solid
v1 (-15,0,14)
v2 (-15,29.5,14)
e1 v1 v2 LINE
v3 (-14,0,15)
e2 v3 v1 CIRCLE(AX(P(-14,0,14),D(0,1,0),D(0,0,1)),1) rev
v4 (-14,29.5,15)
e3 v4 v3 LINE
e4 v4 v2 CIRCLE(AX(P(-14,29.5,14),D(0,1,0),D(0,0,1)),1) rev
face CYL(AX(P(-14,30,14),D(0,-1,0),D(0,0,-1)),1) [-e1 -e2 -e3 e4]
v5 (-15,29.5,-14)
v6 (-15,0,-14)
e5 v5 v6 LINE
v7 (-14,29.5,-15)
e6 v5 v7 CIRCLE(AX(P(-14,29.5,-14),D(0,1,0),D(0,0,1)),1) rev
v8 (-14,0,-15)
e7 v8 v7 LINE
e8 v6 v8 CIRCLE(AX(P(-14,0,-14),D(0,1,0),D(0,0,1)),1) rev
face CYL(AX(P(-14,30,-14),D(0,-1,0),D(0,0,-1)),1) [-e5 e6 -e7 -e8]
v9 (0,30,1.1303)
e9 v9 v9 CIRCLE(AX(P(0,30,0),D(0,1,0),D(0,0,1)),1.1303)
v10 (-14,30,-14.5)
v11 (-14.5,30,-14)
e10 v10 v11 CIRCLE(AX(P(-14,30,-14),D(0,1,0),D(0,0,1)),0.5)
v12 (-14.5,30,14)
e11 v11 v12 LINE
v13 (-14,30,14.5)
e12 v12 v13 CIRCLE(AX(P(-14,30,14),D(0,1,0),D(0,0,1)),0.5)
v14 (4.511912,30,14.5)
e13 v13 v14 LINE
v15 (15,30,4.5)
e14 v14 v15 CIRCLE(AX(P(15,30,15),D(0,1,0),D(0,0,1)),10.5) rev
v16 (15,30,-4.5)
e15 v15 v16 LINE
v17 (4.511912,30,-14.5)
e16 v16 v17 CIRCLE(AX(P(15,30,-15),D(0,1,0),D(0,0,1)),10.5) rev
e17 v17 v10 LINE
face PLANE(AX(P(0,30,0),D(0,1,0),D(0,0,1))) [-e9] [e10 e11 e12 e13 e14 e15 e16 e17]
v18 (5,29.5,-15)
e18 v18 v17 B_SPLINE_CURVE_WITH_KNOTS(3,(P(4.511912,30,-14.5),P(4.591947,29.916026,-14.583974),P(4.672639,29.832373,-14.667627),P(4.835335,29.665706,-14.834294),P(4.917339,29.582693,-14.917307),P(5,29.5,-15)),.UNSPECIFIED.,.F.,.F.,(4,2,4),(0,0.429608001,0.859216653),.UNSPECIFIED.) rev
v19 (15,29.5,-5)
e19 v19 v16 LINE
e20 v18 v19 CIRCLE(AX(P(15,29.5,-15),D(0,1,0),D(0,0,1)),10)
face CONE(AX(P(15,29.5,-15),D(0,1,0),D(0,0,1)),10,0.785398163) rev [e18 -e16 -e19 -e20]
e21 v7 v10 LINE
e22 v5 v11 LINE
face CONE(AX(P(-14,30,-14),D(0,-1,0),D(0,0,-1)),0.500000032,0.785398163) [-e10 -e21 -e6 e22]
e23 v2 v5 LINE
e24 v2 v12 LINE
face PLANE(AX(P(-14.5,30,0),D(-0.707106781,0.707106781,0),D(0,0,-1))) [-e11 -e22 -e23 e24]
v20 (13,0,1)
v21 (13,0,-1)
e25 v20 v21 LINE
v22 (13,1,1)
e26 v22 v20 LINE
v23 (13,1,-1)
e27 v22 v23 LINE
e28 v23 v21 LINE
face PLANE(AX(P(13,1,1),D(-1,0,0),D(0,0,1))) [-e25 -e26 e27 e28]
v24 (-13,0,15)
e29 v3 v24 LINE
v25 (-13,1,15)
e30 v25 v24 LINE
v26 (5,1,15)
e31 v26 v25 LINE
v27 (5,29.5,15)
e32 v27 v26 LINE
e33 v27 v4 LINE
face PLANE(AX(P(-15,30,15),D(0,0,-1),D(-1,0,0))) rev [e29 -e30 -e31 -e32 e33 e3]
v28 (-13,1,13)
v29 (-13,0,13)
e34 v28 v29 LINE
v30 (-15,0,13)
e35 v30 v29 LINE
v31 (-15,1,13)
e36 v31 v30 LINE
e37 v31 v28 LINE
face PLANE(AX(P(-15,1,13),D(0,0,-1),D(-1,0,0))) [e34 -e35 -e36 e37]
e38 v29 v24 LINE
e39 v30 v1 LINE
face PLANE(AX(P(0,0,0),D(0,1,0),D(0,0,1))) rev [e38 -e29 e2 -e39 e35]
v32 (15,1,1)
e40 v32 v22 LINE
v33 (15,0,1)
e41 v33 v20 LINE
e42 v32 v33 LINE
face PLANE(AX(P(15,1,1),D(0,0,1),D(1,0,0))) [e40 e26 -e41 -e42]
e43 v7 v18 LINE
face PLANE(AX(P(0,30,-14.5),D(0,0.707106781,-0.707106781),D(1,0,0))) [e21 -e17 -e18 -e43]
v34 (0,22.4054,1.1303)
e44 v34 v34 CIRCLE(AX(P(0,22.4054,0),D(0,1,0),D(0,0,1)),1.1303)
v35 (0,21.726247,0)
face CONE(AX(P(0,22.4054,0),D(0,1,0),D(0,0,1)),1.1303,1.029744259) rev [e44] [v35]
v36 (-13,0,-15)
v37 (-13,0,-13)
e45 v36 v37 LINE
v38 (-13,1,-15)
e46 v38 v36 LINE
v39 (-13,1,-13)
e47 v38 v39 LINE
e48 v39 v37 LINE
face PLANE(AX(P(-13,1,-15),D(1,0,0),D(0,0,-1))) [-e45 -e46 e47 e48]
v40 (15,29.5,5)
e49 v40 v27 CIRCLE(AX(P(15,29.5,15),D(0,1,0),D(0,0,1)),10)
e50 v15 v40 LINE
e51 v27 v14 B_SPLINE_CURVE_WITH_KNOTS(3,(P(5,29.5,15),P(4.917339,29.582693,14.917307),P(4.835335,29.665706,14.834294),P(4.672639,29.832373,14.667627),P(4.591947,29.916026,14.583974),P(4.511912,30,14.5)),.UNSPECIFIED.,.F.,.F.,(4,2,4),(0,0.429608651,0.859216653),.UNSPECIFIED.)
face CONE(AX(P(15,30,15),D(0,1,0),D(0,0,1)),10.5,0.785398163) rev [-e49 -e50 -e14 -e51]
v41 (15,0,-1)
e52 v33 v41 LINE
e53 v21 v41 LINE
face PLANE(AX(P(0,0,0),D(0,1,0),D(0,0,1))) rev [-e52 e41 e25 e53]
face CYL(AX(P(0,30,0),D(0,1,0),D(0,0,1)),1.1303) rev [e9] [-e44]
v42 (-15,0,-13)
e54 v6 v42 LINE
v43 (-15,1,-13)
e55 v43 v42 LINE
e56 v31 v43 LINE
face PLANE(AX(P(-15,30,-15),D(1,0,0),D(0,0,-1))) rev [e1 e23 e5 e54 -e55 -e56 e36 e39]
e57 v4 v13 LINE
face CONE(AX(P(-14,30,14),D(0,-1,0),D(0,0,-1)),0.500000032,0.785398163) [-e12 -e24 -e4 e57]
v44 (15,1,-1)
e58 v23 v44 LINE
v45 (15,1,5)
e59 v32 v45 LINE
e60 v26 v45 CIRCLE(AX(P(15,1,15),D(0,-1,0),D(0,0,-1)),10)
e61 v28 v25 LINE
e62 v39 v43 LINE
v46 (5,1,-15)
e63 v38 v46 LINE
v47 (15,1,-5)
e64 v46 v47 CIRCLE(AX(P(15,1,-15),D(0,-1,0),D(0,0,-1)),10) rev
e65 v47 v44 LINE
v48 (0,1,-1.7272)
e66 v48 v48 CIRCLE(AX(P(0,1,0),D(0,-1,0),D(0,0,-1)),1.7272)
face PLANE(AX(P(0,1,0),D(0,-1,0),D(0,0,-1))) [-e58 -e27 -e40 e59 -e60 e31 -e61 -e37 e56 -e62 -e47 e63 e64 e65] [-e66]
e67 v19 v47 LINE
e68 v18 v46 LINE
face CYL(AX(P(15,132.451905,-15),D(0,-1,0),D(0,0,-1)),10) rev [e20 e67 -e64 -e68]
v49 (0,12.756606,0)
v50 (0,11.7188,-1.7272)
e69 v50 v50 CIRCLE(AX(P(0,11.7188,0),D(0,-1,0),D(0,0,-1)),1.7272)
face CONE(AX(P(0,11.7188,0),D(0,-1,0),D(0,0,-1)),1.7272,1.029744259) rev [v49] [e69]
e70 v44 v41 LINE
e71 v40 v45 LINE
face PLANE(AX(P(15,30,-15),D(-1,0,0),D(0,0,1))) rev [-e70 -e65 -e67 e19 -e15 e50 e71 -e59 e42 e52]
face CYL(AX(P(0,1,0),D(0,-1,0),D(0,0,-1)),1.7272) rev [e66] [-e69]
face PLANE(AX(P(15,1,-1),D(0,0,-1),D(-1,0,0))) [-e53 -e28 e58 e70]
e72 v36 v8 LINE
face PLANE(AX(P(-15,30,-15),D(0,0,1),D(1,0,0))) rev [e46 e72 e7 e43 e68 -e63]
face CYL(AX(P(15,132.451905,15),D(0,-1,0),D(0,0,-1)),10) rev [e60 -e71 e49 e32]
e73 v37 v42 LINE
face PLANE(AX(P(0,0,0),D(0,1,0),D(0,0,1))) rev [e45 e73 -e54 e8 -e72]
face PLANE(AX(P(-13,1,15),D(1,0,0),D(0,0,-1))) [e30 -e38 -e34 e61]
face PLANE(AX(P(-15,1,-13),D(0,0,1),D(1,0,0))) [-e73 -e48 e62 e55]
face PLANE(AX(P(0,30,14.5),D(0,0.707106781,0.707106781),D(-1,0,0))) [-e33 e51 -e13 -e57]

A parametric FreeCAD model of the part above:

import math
import FreeCAD as App
import Part
import Sketcher
from FreeCAD import Vector


def edges_at(feature, points):
    """Names of the edges that pass closest to the given points."""
    edges = feature.Shape.Edges
    near = lambda p: min(range(len(edges)), key=lambda i: edges[i].distToShape(Part.Vertex(*p))[0])
    return sorted({f"Edge{near(p) + 1}" for p in points})


def add_polygon(sketch, points):
    """Adds a closed chain of lines whose ends are joined by coincident constraints."""
    first, n = sketch.GeometryCount, len(points)
    for a, b in zip(points, points[1:] + points[:1]):
        sketch.addGeometry(Part.LineSegment(App.Vector(*a, 0), App.Vector(*b, 0)), False)
    for i in range(n):
        sketch.addConstraint(Sketcher.Constraint("Coincident", first + i, 2, first + (i + 1) % n, 1))

doc = App.newDocument("Part")
body = doc.addObject("PartDesign::Body", "Body")

# Sketch on XZ plane
sketch1 = body.newObject("Sketcher::SketchObject", "Sketch")
sketch1.AttachmentSupport = (doc.getObject("XZ_Plane"), [""])
sketch1.MapMode = "FlatFace"
add_polygon(sketch1, [(-15, -15), (-15, 15), (15, 15), (15, -15)])  # lines 0-3
sketch1.addConstraint(Sketcher.Constraint("Vertical", 0))
sketch1.addConstraint(Sketcher.Constraint("Horizontal", 1))
sketch1.addConstraint(Sketcher.Constraint("Vertical", 2))
sketch1.addConstraint(Sketcher.Constraint("Horizontal", 3))
sketch1.addConstraint(Sketcher.Constraint("Symmetric", 0, 2, 2, 2, -1, 1))
sketch1.addConstraint(Sketcher.Constraint("Equal", 3, 0))
sketch1.addConstraint(Sketcher.Constraint("DistanceX", 1, 1, 1, 2, 30.0))
pad1 = body.newObject("PartDesign::Pad", "Pad")
pad1.Profile = sketch1
pad1.Length = 30
pad1.Reversed = True

# Sketch on XZ plane
sketch2 = body.newObject("Sketcher::SketchObject", "Sketch001")
sketch2.AttachmentSupport = (doc.getObject("XZ_Plane"), [""])
sketch2.MapMode = "FlatFace"
sketch2.AttachmentOffset = App.Placement(Vector(0, 0, 1), App.Rotation())
sketch2.addGeometry(Part.LineSegment(Vector(15, -5, 0), Vector(97.111026, -5, 0)), False)
sketch2.addGeometry(Part.LineSegment(Vector(97.111026, -5, 0), Vector(213.233551, -121.122526, 0)), False)
sketch2.addGeometry(Part.LineSegment(Vector(213.233551, -121.122526, 0), Vector(121.122526, -213.233551, 0)), False)
sketch2.addGeometry(Part.LineSegment(Vector(121.122526, -213.233551, 0), Vector(5, -97.111026, 0)), False)
sketch2.addGeometry(Part.LineSegment(Vector(5, -97.111026, 0), Vector(5, -15, 0)), False)
sketch2.addGeometry(Part.ArcOfCircle(Part.Circle(Vector(15, -15, 0), Vector(0, 0, 1), 10), math.radians(90), math.radians(180)), False)
sketch2.addConstraint(Sketcher.Constraint("Coincident", 0, 2, 1, 1))
sketch2.addConstraint(Sketcher.Constraint("Coincident", 1, 2, 2, 1))
sketch2.addConstraint(Sketcher.Constraint("Coincident", 2, 2, 3, 1))
sketch2.addConstraint(Sketcher.Constraint("Coincident", 3, 2, 4, 1))
sketch2.addConstraint(Sketcher.Constraint("Tangent", 4, 2, 5, 2))
sketch2.addConstraint(Sketcher.Constraint("Tangent", 5, 1, 0, 1))
sketch2.addConstraint(Sketcher.Constraint("Horizontal", 0))
sketch2.addConstraint(Sketcher.Constraint("Vertical", 4))
sketch2.addConstraint(Sketcher.Constraint("Perpendicular", 1, 2))
sketch2.addConstraint(Sketcher.Constraint("Perpendicular", 2, 3))
sketch2.addConstraint(Sketcher.Constraint("Equal", 0, 4))
sketch2.addConstraint(Sketcher.Constraint("Equal", 1, 3))
sketch2.addConstraint(Sketcher.Constraint("Radius", 5, 10.0))
sketch2.addConstraint(Sketcher.Constraint("DistanceX", -1, 1, 5, 3, 15.0))
sketch2.addConstraint(Sketcher.Constraint("DistanceY", 5, 3, -1, 1, 15.0))
sketch2.addConstraint(Sketcher.Constraint("DistanceX", 0, 2, 2, 2, 24.0115))
sketch2.addConstraint(Sketcher.Constraint("Distance", 1, 164.222051))
pocket1 = body.newObject("PartDesign::Pocket", "Pocket")
pocket1.Profile = sketch2
pocket1.Length = 32
doc.recompute()

mirrored = body.newObject("PartDesign::Mirrored", "Mirrored")
mirrored.Originals = [pocket1]
mirrored.MirrorPlane = (doc.getObject("XY_Plane"), [""])
body.Tip = mirrored

# Sketch on XZ plane
sketch3 = body.newObject("Sketcher::SketchObject", "Sketch002")
sketch3.AttachmentSupport = (doc.getObject("XZ_Plane"), [""])
sketch3.MapMode = "FlatFace"
add_polygon(sketch3, [(-21.196, 21.196), (-21.196, -21.196), (21.196, -21.196), (21.196, 21.196)])  # lines 0-3
add_polygon(sketch3, [(-13, -15), (-15, -15), (-15, -13), (-13, -13)])  # lines 4-7
add_polygon(sketch3, [(-13, 13), (-15, 13), (-15, 15), (-13, 15)])  # lines 8-11
add_polygon(sketch3, [(15, -1), (13, -1), (13, 1), (15, 1)])  # lines 12-15
sketch3.addConstraint(Sketcher.Constraint("Vertical", 0))
sketch3.addConstraint(Sketcher.Constraint("Horizontal", 1))
sketch3.addConstraint(Sketcher.Constraint("Vertical", 2))
sketch3.addConstraint(Sketcher.Constraint("Horizontal", 3))
sketch3.addConstraint(Sketcher.Constraint("Horizontal", 4))
sketch3.addConstraint(Sketcher.Constraint("Vertical", 5))
sketch3.addConstraint(Sketcher.Constraint("Horizontal", 6))
sketch3.addConstraint(Sketcher.Constraint("Vertical", 7))
sketch3.addConstraint(Sketcher.Constraint("Horizontal", 8))
sketch3.addConstraint(Sketcher.Constraint("Vertical", 9))
sketch3.addConstraint(Sketcher.Constraint("Horizontal", 10))
sketch3.addConstraint(Sketcher.Constraint("Vertical", 11))
sketch3.addConstraint(Sketcher.Constraint("Horizontal", 12))
sketch3.addConstraint(Sketcher.Constraint("Vertical", 13))
sketch3.addConstraint(Sketcher.Constraint("Horizontal", 14))
sketch3.addConstraint(Sketcher.Constraint("Vertical", 15))
sketch3.addConstraint(Sketcher.Constraint("Symmetric", 0, 2, 2, 2, -1, 1))
sketch3.addConstraint(Sketcher.Constraint("Symmetric", 5, 2, 8, 2, -1))
sketch3.addConstraint(Sketcher.Constraint("Symmetric", 7, 2, 10, 2, -1))
sketch3.addConstraint(Sketcher.Constraint("Equal", 10, 12))
sketch3.addConstraint(Sketcher.Constraint("Equal", 3, 0))
sketch3.addConstraint(Sketcher.Constraint("Equal", 14, 5))
sketch3.addConstraint(Sketcher.Constraint("Equal", 11, 13))
sketch3.addConstraint(Sketcher.Constraint("DistanceX", 4, 2, 4, 1, 2.0))
sketch3.addConstraint(Sketcher.Constraint("DistanceX", 4, 2, -1, 1, 15.0))
sketch3.addConstraint(Sketcher.Constraint("DistanceY", 4, 2, -1, 1, 15.0))
sketch3.addConstraint(Sketcher.Constraint("DistanceX", -1, 1, 12, 2, 13.0))
sketch3.addConstraint(Sketcher.Constraint("DistanceY", 12, 2, -1, 1, 1.0))
sketch3.addConstraint(Sketcher.Constraint("DistanceX", 1, 1, 1, 2, 42.392))
pocket2 = body.newObject("PartDesign::Pocket", "Pocket001")
pocket2.Profile = sketch3
pocket2.Length = 1

# Sketch on XZ plane
sketch4 = body.newObject("Sketcher::SketchObject", "Sketch003")
sketch4.AttachmentSupport = (doc.getObject("XZ_Plane"), [""])
sketch4.MapMode = "FlatFace"
sketch4.AttachmentOffset = App.Placement(Vector(0, 0, -1), App.Rotation())
sketch4.addGeometry(Part.Circle(Vector(0, 0, 0), Vector(0, 0, 1), 1.7272), False)
sketch4.addConstraint(Sketcher.Constraint("Coincident", 0, 3, -1, 1))
sketch4.addConstraint(Sketcher.Constraint("Diameter", 0, 3.4544))
doc.recompute()
hole = body.newObject("PartDesign::Hole", "Hole")
hole.Profile = sketch4
hole.ThreadType = "None"
hole.Diameter = 3.4544
hole.DepthType = "Dimension"
hole.Depth = 10.7188
hole.DrillPoint = "Angled"
hole.DrillPointAngle = 118

# Sketch on XZ plane
sketch5 = body.newObject("Sketcher::SketchObject", "Sketch004")
sketch5.AttachmentSupport = (doc.getObject("XZ_Plane"), [""])
sketch5.MapMode = "FlatFace"
sketch5.AttachmentOffset = App.Placement(Vector(0, 0, -30), App.Rotation())
sketch5.addGeometry(Part.Circle(Vector(0, 0, 0), Vector(0, 0, 1), 1.1303), False)
sketch5.addConstraint(Sketcher.Constraint("Coincident", 0, 3, -1, 1))
sketch5.addConstraint(Sketcher.Constraint("Diameter", 0, 2.2606))
doc.recompute()
hole2 = body.newObject("PartDesign::Hole", "Hole001")
hole2.Profile = sketch5
hole2.ThreadType = "None"
hole2.Diameter = 2.2606
hole2.DepthType = "Dimension"
hole2.Depth = 7.5946
hole2.DrillPoint = "Angled"
hole2.DrillPointAngle = 118
hole2.Reversed = True
doc.recompute()

fillet = body.newObject("PartDesign::Fillet", "Fillet")
fillet.Base = (hole2, edges_at(hole2, [(-15, 15, 15), (-15, 15, -15)]))
fillet.Radius = 1
doc.recompute()

chamfer = body.newObject("PartDesign::Chamfer", "Chamfer")
chamfer.Base = (fillet, edges_at(fillet, [
    (-14.707, 30, -14.707),
    (-14.707, 30, 14.707),
    (-4.5, 30, -15),
    (7.929, 30, -7.929),
    (7.929, 30, 7.929),
    (-4.5, 30, 15),
    (-15, 30, 0),
]))
chamfer.Size = 0.5

doc.recompute()
